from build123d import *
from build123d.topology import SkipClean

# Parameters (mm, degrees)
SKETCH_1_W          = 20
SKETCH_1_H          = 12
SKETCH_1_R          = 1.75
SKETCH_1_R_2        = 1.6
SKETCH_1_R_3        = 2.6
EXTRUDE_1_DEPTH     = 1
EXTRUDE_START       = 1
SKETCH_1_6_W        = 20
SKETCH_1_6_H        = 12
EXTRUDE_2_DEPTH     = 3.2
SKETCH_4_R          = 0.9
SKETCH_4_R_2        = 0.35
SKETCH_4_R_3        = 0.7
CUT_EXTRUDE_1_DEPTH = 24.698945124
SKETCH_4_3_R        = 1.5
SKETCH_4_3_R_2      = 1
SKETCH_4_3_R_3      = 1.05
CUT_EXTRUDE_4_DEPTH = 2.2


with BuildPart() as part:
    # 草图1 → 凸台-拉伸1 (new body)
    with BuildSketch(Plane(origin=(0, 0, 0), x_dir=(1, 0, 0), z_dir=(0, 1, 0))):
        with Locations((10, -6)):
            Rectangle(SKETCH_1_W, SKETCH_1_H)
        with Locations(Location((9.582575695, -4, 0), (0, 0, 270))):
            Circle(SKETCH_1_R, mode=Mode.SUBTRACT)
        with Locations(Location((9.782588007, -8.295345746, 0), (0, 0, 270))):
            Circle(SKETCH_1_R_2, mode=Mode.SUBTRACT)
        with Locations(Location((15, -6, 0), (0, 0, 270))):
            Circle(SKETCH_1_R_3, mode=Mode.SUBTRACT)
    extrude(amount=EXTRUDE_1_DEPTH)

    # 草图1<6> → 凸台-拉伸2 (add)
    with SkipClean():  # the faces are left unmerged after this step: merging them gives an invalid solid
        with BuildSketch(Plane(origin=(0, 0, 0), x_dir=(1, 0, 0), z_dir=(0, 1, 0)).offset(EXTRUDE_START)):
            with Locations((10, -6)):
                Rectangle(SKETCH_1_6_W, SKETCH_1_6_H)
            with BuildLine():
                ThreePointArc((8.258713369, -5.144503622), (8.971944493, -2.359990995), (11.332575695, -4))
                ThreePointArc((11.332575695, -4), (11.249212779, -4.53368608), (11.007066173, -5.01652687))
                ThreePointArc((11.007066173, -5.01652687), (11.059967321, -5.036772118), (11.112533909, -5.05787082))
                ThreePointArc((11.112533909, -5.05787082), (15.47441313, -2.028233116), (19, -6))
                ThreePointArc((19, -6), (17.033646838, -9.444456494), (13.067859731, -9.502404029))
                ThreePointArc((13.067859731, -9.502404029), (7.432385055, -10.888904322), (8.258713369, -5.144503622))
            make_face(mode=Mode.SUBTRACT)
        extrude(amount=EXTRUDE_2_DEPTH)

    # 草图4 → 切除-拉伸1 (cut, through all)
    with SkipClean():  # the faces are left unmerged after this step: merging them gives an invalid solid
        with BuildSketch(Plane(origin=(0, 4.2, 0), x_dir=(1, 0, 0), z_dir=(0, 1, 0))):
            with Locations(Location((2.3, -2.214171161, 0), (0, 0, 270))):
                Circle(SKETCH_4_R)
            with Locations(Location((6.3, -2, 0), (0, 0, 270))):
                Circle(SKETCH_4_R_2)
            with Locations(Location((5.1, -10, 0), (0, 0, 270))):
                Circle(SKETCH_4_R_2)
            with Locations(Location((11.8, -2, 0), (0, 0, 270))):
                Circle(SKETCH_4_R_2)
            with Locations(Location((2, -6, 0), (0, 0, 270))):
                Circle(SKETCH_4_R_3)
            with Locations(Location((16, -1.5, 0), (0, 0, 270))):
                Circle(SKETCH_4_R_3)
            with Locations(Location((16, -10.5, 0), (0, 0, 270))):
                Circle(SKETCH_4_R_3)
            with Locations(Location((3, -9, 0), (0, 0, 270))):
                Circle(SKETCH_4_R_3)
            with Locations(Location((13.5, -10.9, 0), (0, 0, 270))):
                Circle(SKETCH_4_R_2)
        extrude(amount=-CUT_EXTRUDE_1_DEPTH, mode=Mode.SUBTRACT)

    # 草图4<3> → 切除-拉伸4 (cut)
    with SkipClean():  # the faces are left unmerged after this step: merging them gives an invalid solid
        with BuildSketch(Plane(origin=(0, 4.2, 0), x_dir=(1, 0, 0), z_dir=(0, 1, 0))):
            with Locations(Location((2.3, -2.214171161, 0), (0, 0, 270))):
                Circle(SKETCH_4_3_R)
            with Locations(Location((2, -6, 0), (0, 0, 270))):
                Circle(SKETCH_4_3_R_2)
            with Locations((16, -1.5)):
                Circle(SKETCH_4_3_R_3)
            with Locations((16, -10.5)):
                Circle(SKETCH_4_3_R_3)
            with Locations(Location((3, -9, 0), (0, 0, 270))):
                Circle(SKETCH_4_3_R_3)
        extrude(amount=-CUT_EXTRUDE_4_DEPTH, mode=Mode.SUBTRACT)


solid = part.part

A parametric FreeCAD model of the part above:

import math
import FreeCAD as App
import Part
import Sketcher

V = App.Vector
Q = App.Units.Quantity


def add_polygon(sketch, points):
    """Adds a closed chain of lines whose ends are joined by coincident constraints."""
    first, n = sketch.GeometryCount, len(points)
    for a, b in zip(points, points[1:] + points[:1]):
        sketch.addGeometry(Part.LineSegment(App.Vector(*a, 0), App.Vector(*b, 0)), False)
    for i in range(n):
        sketch.addConstraint(Sketcher.Constraint("Coincident", first + i, 2, first + (i + 1) % n, 1))

doc = App.newDocument("Part")
body = doc.addObject("PartDesign::Body", "Body")

# Sketch on XZ plane
sketch1 = body.newObject("Sketcher::SketchObject", "Sketch")
sketch1.AttachmentSupport = (doc.getObject("XZ_Plane"), [""])
sketch1.MapMode = "FlatFace"
add_polygon(sketch1, [(0, 0), (0, 12), (20, 12), (20, 0)])  # lines 0-3
sketch1.addGeometry(Part.Circle(V(9.782588, 8.295346, 0), V(0, 0, 1), 1.6), False)  # 4
sketch1.addGeometry(Part.Circle(V(9.582576, 4, 0), V(0, 0, 1), 1.75), False)  # 5
sketch1.addGeometry(Part.Circle(V(15, 6, 0), V(0, 0, 1), 2.6), False)  # 6
sketch1.addConstraint([
    Sketcher.Constraint("Vertical", 0),
    Sketcher.Constraint("Horizontal", 1),
    Sketcher.Constraint("Vertical", 2),
    Sketcher.Constraint("Horizontal", 3),
    Sketcher.Constraint("Coincident", 3, 2, -1, 1),
    Sketcher.Constraint("Diameter", 4, Q("3.2 mm")),
    Sketcher.Constraint("Diameter", 5, Q("3.5 mm")),
    Sketcher.Constraint("Diameter", 6, Q("5.2 mm")),
    Sketcher.Constraint("DistanceX", 1, 1, 1, 2, Q("20 mm")),
    Sketcher.Constraint("DistanceY", 0, 1, 0, 2, Q("12 mm")),
    Sketcher.Constraint("DistanceY", -1, 1, 5, 3, Q("4 mm")),
    Sketcher.Constraint("DistanceX", -1, 1, 6, 3, Q("15 mm")),
    Sketcher.Constraint("DistanceY", -1, 1, 6, 3, Q("6 mm")),
    Sketcher.Constraint("DistanceX", -1, 1, 4, 3, Q("9.782588 mm")),
    Sketcher.Constraint("DistanceY", -1, 1, 4, 3, Q("8.295346 mm")),
    Sketcher.Constraint("DistanceX", -1, 1, 5, 3, Q("9.582576 mm")),
])
pad1 = body.newObject("PartDesign::Pad", "Pad")
pad1.Profile = sketch1
pad1.Length = 1
pad1.Reversed = True

# Sketch on XZ plane
sketch2 = body.newObject("Sketcher::SketchObject", "Sketch001")
sketch2.AttachmentSupport = (doc.getObject("XZ_Plane"), [""])
sketch2.MapMode = "FlatFace"
sketch2.AttachmentOffset = App.Placement(V(0, 0, -1), App.Rotation())
add_polygon(sketch2, [(0, 0), (0, 12), (20, 12), (20, 0)])  # lines 0-3
sketch2.addGeometry(Part.ArcOfCircle(Part.Circle(V(9.782588, 8.295346, 0), V(0, 0, 1), 3.5), math.radians(20.174092), math.radians(244.189712)), False)  # 4
sketch2.addGeometry(Part.ArcOfCircle(Part.Circle(V(9.582576, 4, 0), V(0, 0, 1), 1.75), math.radians(139.155975), math.radians(360)), False)  # 5
sketch2.addGeometry(Part.ArcOfCircle(Part.Circle(V(9.582576, 4, 0), V(0, 0, 1), 1.75), math.radians(0), math.radians(35.511933)), False)  # 6
sketch2.addGeometry(Part.ArcOfCircle(Part.Circle(V(9.782588, 8.295344, 0), V(0, 0, 1), 3.499999), math.radians(-69.521804), math.radians(-67.667274)), False)  # 7
sketch2.addGeometry(Part.ArcOfCircle(Part.Circle(V(15, 6, 0), V(0, 0, 1), 4), math.radians(-166.376998), math.radians(0)), False)  # 8
sketch2.addGeometry(Part.ArcOfCircle(Part.Circle(V(15, 6, 0), V(0, 0, 1), 4), math.radians(0), math.radians(118.883815)), False)  # 9
sketch2.addConstraint([
    Sketcher.Constraint("Coincident", 4, 2, 5, 1),
    Sketcher.Constraint("Tangent", 5, 2, 6, 1),
    Sketcher.Constraint("Coincident", 6, 2, 7, 1),
    Sketcher.Constraint("Coincident", 7, 2, 8, 1),
    Sketcher.Constraint("Tangent", 8, 2, 9, 1),
    Sketcher.Constraint("Coincident", 9, 2, 4, 1),
    Sketcher.Constraint("Vertical", 0),
    Sketcher.Constraint("Horizontal", 1),
    Sketcher.Constraint("Vertical", 2),
    Sketcher.Constraint("Horizontal", 3),
    Sketcher.Constraint("Coincident", 3, 2, -1, 1),
    Sketcher.Constraint("Coincident", 7, 3, 4, 3),
    Sketcher.Constraint("Equal", 5, 6),
    Sketcher.Constraint("Equal", 4, 7),
    Sketcher.Constraint("Equal", 8, 9),
    Sketcher.Constraint("Horizontal", 6, 3, 5, 2),
    Sketcher.Constraint("Horizontal", 9, 3, 8, 2),
    Sketcher.Constraint("Radius", 8, Q("4 mm")),
    Sketcher.Constraint("Radius", 4, Q("3.5 mm")),
    Sketcher.Constraint("DistanceX", 1, 1, 1, 2, Q("20 mm")),
    Sketcher.Constraint("DistanceY", 0, 1, 0, 2, Q("12 mm")),
    Sketcher.Constraint("Radius", 5, Q("1.75 mm")),
    Sketcher.Constraint("DistanceY", -1, 1, 5, 3, Q("4 mm")),
    Sketcher.Constraint("DistanceX", -1, 1, 8, 3, Q("15 mm")),
    Sketcher.Constraint("DistanceY", -1, 1, 8, 3, Q("6 mm")),
    Sketcher.Constraint("DistanceX", -1, 1, 4, 3, Q("9.782588 mm")),
    Sketcher.Constraint("DistanceY", -1, 1, 7, 2, Q("5.057871 mm")),
    Sketcher.Constraint("DistanceY", 4, 2, 7, 3, Q("3.150841 mm")),
])
pad2 = body.newObject("PartDesign::Pad", "Pad001")
pad2.Profile = sketch2
pad2.Length = 3.2
pad2.Reversed = True

# Sketch on XZ plane
sketch3 = body.newObject("Sketcher::SketchObject", "Sketch002")
sketch3.AttachmentSupport = (doc.getObject("XZ_Plane"), [""])
sketch3.MapMode = "FlatFace"
sketch3.AttachmentOffset = App.Placement(V(0, 0, -4.2), App.Rotation())
sketch3.addGeometry([
    Part.Circle(V(2.3, 2.214171, 0), V(0, 0, 1), 0.9),  # 0
    Part.Circle(V(6.3, 2, 0), V(0, 0, 1), 0.35),  # 1
    Part.Circle(V(5.1, 10, 0), V(0, 0, 1), 0.35),  # 2
    Part.Circle(V(11.8, 2, 0), V(0, 0, 1), 0.35),  # 3
    Part.Circle(V(2, 6, 0), V(0, 0, 1), 0.7),  # 4
    Part.Circle(V(16, 1.5, 0), V(0, 0, 1), 0.7),  # 5
    Part.Circle(V(16, 10.5, 0), V(0, 0, 1), 0.7),  # 6
    Part.Circle(V(3, 9, 0), V(0, 0, 1), 0.7),  # 7
    Part.Circle(V(13.5, 10.9, 0), V(0, 0, 1), 0.35),  # 8
], False)
sketch3.addConstraint([
    Sketcher.Constraint("Equal", 1, 2),
    Sketcher.Constraint("Equal", 2, 3),
    Sketcher.Constraint("Equal", 4, 5),
    Sketcher.Constraint("Equal", 5, 6),
    Sketcher.Constraint("Equal", 6, 7),
    Sketcher.Constraint("Equal", 3, 8),
    Sketcher.Constraint("Horizontal", 1, 3, 3, 3),
    Sketcher.Constraint("Vertical", 5, 3, 6, 3),
    Sketcher.Constraint("Diameter", 0, Q("1.8 mm")),
    Sketcher.Constraint("Diameter", 1, Q("0.7 mm")),
    Sketcher.Constraint("Diameter", 4, Q("1.4 mm")),
    Sketcher.Constraint("DistanceY", -1, 1, 1, 3, Q("2 mm")),
    Sketcher.Constraint("DistanceY", -1, 1, 2, 3, Q("10 mm")),
    Sketcher.Constraint("DistanceX", -1, 1, 4, 3, Q("2 mm")),
    Sketcher.Constraint("DistanceY", -1, 1, 4, 3, Q("6 mm")),
    Sketcher.Constraint("DistanceX", -1, 1, 5, 3, Q("16 mm")),
    Sketcher.Constraint("DistanceX", -1, 1, 7, 3, Q("3 mm")),
    Sketcher.Constraint("DistanceY", -1, 1, 7, 3, Q("9 mm")),
    Sketcher.Constraint("DistanceX", 0, 3, 1, 3, Q("4 mm")),
    Sketcher.Constraint("DistanceY", 5, 3, 6, 3, Q("9 mm")),
    Sketcher.Constraint("DistanceX", -1, 1, 0, 3, Q("2.3 mm")),
    Sketcher.Constraint("DistanceX", -1, 1, 2, 3, Q("5.1 mm")),
    Sketcher.Constraint("DistanceX", -1, 1, 3, 3, Q("11.8 mm")),
    Sketcher.Constraint("DistanceY", -1, 1, 5, 3, Q("1.5 mm")),
    Sketcher.Constraint("DistanceX", -1, 1, 8, 3, Q("13.5 mm")),
    Sketcher.Constraint("DistanceY", -1, 1, 8, 3, Q("10.9 mm")),
    Sketcher.Constraint("DistanceY", -1, 1, 0, 3, Q("2.214171 mm")),
])
pocket1 = body.newObject("PartDesign::Pocket", "Pocket")
pocket1.Profile = sketch3
pocket1.Type = "ThroughAll"
pocket1.Reversed = True

# Sketch on XZ plane
sketch4 = body.newObject("Sketcher::SketchObject", "Sketch003")
sketch4.AttachmentSupport = (doc.getObject("XZ_Plane"), [""])
sketch4.MapMode = "FlatFace"
sketch4.AttachmentOffset = App.Placement(V(0, 0, -4.2), App.Rotation())
sketch4.addGeometry([
    Part.Circle(V(2.3, 2.214171, 0), V(0, 0, 1), 1.5),  # 0
    Part.Circle(V(2, 6, 0), V(0, 0, 1), 1),  # 1
    Part.Circle(V(16, 1.5, 0), V(0, 0, 1), 1.05),  # 2
    Part.Circle(V(16, 10.5, 0), V(0, 0, 1), 1.05),  # 3
    Part.Circle(V(3, 9, 0), V(0, 0, 1), 1.05),  # 4
], False)
sketch4.addConstraint([
    Sketcher.Constraint("Equal", 2, 3),
    Sketcher.Constraint("Equal", 3, 4),
    Sketcher.Constraint("Vertical", 2, 3, 3, 3),
    Sketcher.Constraint("Diameter", 0, Q("3 mm")),
    Sketcher.Constraint("Diameter", 1, Q("2 mm")),
    Sketcher.Constraint("Diameter", 2, Q("2.1 mm")),
    Sketcher.Constraint("DistanceX", -1, 1, 1, 3, Q("2 mm")),
    Sketcher.Constraint("DistanceY", -1, 1, 1, 3, Q("6 mm")),
    Sketcher.Constraint("DistanceX", -1, 1, 2, 3, Q("16 mm")),
    Sketcher.Constraint("DistanceX", -1, 1, 4, 3, Q("3 mm")),
    Sketcher.Constraint("DistanceY", -1, 1, 4, 3, Q("9 mm")),
    Sketcher.Constraint("DistanceY", 2, 3, 3, 3, Q("9 mm")),
    Sketcher.Constraint("DistanceX", -1, 1, 0, 3, Q("2.3 mm")),
    Sketcher.Constraint("DistanceY", -1, 1, 2, 3, Q("1.5 mm")),
    Sketcher.Constraint("DistanceY", -1, 1, 0, 3, Q("2.214171 mm")),
])
pocket2 = body.newObject("PartDesign::Pocket", "Pocket001")
pocket2.Profile = sketch4
pocket2.Length = 2.2
pocket2.Reversed = True

doc.recompute()
